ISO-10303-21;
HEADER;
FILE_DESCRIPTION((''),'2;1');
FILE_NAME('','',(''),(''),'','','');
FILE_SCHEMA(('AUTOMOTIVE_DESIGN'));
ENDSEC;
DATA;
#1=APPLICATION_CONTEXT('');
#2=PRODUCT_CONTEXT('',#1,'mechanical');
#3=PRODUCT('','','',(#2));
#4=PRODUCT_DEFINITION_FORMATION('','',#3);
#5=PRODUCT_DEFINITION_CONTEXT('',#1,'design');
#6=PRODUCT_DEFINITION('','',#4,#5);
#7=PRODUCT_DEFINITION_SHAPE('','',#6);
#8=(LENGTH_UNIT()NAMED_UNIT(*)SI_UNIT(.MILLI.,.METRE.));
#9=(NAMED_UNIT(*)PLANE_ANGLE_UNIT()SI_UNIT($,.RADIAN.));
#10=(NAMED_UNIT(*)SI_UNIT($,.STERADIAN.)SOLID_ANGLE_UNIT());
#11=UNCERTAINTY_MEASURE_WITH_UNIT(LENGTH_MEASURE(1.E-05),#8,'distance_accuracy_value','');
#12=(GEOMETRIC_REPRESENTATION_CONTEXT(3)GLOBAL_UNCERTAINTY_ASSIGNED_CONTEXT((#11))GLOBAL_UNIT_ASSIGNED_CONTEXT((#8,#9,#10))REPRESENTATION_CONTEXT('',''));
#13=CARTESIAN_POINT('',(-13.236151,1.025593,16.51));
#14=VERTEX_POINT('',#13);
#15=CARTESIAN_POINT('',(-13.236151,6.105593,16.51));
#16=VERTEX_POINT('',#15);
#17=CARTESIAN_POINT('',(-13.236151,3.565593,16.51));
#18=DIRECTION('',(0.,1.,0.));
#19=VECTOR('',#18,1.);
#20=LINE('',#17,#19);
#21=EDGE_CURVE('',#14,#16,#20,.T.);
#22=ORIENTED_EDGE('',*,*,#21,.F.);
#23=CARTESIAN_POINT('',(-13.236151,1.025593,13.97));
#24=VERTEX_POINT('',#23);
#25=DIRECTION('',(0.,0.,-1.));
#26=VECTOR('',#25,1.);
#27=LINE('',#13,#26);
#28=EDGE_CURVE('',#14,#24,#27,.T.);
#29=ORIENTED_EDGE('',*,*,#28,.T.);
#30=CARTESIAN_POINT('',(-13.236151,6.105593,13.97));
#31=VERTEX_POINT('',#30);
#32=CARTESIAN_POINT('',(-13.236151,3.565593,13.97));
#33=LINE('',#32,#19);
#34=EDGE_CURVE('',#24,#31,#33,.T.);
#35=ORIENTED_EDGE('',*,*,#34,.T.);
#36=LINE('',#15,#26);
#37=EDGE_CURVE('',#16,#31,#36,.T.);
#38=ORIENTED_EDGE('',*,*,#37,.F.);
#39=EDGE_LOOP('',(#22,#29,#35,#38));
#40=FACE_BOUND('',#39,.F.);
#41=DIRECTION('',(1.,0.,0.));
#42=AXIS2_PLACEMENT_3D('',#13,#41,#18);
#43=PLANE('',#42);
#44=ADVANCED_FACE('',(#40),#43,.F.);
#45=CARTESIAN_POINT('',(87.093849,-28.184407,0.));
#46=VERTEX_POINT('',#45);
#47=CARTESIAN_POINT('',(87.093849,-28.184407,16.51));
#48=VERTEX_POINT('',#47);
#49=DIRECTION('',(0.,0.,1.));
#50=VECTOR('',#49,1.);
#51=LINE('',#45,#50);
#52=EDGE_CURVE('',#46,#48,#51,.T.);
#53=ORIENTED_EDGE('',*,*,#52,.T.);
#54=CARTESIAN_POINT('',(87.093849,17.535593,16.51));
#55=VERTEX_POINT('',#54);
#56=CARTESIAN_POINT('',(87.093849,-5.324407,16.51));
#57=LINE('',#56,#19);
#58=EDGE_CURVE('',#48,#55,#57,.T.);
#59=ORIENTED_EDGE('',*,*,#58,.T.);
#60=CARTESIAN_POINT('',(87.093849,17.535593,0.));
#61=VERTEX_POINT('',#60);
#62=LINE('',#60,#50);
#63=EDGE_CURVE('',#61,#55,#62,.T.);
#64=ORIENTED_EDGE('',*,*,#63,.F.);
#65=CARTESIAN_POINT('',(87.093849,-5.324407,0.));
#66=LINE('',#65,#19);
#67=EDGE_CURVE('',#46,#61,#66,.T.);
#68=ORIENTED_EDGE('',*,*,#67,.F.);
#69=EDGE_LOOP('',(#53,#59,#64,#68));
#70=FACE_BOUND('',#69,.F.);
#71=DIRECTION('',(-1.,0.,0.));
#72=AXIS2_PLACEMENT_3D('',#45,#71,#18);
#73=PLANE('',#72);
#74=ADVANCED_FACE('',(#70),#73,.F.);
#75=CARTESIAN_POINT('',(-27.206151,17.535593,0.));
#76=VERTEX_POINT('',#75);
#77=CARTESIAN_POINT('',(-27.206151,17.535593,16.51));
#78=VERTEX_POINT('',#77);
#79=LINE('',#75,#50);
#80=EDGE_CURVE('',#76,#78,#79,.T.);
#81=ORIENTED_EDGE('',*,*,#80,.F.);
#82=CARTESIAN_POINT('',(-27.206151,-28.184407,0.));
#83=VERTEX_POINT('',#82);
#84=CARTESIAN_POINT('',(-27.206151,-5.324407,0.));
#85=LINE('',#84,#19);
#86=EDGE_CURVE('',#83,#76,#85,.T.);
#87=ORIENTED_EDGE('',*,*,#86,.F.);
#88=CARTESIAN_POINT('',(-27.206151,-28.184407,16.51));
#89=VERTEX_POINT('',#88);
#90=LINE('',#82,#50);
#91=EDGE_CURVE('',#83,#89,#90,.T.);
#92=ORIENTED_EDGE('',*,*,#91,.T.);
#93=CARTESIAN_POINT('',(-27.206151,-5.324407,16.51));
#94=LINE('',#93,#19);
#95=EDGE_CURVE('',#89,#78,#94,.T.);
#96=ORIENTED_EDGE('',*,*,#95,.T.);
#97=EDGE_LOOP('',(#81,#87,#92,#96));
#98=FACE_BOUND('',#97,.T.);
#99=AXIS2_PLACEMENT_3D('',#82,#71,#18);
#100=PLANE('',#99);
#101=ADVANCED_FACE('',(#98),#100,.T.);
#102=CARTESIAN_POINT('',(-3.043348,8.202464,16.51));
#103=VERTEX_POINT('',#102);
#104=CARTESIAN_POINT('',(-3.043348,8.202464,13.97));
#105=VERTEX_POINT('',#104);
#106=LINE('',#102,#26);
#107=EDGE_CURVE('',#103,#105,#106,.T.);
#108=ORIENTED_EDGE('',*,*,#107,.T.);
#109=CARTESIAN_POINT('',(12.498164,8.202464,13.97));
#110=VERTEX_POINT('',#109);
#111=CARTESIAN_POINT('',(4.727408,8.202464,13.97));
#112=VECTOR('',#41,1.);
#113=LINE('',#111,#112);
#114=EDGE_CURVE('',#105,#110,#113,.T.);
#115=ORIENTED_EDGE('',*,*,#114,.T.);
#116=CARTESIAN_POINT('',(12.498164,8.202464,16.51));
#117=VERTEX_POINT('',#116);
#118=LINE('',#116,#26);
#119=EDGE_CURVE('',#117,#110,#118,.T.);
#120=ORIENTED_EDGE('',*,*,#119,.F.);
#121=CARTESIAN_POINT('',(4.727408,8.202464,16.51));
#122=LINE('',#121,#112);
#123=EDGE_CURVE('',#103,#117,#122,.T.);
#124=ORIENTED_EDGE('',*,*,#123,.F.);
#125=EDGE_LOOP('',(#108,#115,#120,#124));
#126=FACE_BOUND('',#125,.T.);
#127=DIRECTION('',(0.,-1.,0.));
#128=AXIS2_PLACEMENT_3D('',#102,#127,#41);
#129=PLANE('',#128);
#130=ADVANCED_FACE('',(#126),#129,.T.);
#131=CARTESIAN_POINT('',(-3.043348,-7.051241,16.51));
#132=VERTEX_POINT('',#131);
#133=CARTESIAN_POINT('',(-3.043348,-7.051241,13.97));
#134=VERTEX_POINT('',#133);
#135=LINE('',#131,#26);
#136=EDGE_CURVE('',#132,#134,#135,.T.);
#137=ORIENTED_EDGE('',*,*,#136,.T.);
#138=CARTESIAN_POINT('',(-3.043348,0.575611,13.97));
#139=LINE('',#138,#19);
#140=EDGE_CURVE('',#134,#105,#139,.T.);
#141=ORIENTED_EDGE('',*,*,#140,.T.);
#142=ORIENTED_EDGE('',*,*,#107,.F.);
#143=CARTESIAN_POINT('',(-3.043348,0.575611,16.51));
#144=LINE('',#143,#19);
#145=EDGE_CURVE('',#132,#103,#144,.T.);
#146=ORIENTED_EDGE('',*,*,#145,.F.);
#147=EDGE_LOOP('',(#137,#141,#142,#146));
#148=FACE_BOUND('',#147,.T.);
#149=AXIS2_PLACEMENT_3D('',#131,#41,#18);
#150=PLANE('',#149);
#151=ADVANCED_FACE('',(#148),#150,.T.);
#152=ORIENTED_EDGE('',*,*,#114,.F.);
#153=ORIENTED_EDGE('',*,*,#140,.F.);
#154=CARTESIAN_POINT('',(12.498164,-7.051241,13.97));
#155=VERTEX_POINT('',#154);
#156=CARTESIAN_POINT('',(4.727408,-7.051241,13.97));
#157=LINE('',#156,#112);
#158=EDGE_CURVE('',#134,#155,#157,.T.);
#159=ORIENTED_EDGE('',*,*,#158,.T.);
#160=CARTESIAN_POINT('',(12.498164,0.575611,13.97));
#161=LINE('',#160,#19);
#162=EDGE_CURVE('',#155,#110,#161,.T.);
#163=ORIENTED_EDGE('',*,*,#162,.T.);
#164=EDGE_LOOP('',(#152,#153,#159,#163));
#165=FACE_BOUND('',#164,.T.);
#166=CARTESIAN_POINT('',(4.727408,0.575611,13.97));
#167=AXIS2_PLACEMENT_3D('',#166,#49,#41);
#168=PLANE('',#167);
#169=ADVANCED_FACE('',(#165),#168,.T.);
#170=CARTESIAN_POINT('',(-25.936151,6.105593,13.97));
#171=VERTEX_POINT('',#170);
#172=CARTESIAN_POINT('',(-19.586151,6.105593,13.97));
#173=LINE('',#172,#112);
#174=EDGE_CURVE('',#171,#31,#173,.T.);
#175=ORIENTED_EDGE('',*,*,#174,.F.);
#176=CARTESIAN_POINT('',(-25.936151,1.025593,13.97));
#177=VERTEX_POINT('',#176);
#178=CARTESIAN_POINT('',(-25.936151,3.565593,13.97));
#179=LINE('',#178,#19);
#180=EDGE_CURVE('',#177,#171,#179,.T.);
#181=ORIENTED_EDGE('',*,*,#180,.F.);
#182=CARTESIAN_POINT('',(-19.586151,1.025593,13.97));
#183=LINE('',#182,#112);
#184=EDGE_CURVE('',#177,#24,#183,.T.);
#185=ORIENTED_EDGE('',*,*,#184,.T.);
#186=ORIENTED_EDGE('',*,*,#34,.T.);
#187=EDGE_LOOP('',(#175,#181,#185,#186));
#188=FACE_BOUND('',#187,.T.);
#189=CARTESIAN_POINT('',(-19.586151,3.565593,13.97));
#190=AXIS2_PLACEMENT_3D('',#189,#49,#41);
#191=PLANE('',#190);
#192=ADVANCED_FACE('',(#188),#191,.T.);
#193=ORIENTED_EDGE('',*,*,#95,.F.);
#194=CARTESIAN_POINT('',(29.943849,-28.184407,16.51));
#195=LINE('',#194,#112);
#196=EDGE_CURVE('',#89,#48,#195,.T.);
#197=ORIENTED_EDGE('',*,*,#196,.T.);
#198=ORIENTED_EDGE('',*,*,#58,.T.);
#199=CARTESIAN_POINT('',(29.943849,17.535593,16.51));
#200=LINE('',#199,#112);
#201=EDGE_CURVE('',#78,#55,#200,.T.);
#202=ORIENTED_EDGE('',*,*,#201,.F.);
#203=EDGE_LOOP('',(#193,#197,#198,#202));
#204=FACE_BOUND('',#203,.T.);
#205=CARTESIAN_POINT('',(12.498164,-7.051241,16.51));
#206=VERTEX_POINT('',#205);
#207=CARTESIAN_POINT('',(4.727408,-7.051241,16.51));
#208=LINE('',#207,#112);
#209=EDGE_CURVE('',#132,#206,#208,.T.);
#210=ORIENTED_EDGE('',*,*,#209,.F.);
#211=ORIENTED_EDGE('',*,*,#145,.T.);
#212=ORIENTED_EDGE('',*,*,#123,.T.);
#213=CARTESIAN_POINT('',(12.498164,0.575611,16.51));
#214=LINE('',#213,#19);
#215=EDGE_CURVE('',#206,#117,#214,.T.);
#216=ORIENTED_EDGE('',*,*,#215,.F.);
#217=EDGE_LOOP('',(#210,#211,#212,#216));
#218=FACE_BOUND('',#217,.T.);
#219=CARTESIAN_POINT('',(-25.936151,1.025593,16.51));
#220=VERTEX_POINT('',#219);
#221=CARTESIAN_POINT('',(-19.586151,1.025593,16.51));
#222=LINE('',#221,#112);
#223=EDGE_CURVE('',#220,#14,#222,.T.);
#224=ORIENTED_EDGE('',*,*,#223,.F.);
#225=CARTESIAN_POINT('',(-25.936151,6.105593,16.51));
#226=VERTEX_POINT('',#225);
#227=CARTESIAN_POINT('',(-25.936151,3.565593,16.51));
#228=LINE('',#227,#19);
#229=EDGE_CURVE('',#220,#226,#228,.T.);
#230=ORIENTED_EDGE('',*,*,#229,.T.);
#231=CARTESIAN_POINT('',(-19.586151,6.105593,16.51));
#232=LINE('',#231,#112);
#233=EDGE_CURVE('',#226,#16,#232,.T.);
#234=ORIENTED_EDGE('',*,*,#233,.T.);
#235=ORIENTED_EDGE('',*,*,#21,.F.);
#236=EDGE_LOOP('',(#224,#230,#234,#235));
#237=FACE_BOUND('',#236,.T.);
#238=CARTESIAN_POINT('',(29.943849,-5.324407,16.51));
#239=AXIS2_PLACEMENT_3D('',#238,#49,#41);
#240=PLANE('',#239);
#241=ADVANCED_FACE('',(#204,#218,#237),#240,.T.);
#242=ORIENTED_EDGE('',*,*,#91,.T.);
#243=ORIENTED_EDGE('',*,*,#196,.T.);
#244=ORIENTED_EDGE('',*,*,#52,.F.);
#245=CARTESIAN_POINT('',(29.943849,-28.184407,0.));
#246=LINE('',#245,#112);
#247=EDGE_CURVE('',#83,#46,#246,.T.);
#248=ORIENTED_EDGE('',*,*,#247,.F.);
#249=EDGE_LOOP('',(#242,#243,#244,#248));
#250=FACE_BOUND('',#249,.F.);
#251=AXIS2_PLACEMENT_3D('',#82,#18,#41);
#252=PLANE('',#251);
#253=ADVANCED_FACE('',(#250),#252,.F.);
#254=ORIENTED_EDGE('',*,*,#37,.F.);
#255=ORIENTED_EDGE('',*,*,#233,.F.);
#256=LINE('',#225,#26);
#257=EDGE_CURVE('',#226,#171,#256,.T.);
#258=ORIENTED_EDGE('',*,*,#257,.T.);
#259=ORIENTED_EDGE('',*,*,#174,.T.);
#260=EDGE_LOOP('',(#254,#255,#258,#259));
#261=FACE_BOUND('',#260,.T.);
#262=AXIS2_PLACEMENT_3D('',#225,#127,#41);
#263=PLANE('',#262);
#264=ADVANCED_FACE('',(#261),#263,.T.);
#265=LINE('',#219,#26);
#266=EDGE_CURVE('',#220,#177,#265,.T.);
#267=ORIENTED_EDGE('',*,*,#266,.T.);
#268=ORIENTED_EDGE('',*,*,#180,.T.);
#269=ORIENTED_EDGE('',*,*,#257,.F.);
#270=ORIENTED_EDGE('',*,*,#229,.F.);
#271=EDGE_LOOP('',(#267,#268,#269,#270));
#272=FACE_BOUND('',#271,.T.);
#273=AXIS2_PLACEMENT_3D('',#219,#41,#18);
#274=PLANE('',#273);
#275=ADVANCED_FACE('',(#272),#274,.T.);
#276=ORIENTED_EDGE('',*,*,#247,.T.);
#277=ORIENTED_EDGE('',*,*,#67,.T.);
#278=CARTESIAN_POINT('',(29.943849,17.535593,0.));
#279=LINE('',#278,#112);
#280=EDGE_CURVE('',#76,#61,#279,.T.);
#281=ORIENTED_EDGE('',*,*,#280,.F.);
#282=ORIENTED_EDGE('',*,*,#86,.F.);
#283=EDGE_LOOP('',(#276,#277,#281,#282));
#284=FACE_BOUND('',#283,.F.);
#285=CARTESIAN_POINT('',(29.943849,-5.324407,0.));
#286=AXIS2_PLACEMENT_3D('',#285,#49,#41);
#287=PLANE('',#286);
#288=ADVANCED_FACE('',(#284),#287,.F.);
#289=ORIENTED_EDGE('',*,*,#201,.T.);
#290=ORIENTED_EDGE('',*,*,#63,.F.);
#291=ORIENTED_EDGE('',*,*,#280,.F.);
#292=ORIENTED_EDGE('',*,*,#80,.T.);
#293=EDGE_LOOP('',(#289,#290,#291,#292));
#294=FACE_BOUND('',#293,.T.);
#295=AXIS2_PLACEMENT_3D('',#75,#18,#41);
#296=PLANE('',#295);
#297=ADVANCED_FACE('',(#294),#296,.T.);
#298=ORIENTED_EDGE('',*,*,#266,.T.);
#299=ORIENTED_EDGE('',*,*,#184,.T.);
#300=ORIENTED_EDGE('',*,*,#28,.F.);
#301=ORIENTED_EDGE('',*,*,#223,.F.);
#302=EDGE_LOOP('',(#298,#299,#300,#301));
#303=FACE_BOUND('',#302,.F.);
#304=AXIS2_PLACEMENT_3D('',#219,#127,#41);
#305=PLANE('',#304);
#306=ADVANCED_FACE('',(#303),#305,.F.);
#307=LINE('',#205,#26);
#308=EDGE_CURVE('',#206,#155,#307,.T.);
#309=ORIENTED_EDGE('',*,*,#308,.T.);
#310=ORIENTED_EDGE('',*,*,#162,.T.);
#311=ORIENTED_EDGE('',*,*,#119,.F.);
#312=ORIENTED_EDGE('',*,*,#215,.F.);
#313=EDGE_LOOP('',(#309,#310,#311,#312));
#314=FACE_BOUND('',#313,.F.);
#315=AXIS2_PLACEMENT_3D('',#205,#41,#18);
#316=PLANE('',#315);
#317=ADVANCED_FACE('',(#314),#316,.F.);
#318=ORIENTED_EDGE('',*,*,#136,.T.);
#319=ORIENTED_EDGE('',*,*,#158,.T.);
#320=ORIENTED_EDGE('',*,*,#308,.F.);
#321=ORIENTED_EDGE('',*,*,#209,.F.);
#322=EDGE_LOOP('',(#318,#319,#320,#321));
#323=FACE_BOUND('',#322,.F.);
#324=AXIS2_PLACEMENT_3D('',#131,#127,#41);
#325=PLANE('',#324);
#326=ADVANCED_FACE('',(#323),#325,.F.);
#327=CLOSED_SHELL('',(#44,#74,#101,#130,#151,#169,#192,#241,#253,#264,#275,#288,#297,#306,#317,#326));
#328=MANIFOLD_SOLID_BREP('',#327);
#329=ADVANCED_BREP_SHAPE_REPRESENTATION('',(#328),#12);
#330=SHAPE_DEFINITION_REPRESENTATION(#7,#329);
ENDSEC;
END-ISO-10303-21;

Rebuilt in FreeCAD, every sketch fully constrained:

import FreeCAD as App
import Part
import Sketcher

V = App.Vector
Q = App.Units.Quantity

doc = App.newDocument("Part")
params = doc.addObject("Spreadsheet::Sheet", "Params")
for row, (alias, value) in enumerate([
    ("sketch1_width", "4.5 in"),
    ("sketch1_height", "1.8 in"),
    ("pad1_length", "0.65 in"),
    ("sketch2_width", "0.5 in"),
    ("sketch2_height", "0.2 in"),
    ("pocket1_length", "0.1 in"),
], start=1):
    params.set(f"A{row}", alias)
    params.set(f"B{row}", "=" + value)
    params.setAlias(f"B{row}", alias)

body = doc.addObject("PartDesign::Body", "Body")

# Sketch on XY plane
sketch1 = body.newObject("Sketcher::SketchObject", "Sketch")
sketch1.AttachmentSupport = (doc.getObject("XY_Plane"), [""])
sketch1.MapMode = "FlatFace"
sketch1.addGeometry([
    Part.LineSegment(V(-27, 18, 0), V(-27, -28, 0)),
    Part.LineSegment(V(-27, -28, 0), V(87, -28, 0)),
    Part.LineSegment(V(87, -28, 0), V(87, 18, 0)),
    Part.LineSegment(V(87, 18, 0), V(-27, 18, 0)),
], False)
sketch1.addConstraint([
    Sketcher.Constraint("Coincident", 0, 2, 1, 1),
    Sketcher.Constraint("Coincident", 1, 2, 2, 1),
    Sketcher.Constraint("Coincident", 2, 2, 3, 1),
    Sketcher.Constraint("Coincident", 3, 2, 0, 1),
    Sketcher.Constraint("Vertical", 0),
    Sketcher.Constraint("Horizontal", 1),
    Sketcher.Constraint("Vertical", 2),
    Sketcher.Constraint("Horizontal", 3),
    Sketcher.Constraint("DistanceX", 1, 1, 1, 2, Q("4.5 in")),
    Sketcher.Constraint("DistanceY", 0, 2, 0, 1, Q("1.8 in")),
    Sketcher.Constraint("DistanceX", 0, 2, -1, 1, 27.206151),
    Sketcher.Constraint("DistanceY", 0, 2, -1, 1, 28.184407),
])
sketch1.setExpression("Constraints[8]", "Params.sketch1_width")
sketch1.setExpression("Constraints[9]", "Params.sketch1_height")
pad1 = body.newObject("PartDesign::Pad", "Pad")
pad1.Profile = sketch1
pad1.setExpression("Length", "Params.pad1_length")

# Sketch on XY plane
sketch2 = body.newObject("Sketcher::SketchObject", "Sketch001")
sketch2.AttachmentSupport = (doc.getObject("XY_Plane"), [""])
sketch2.MapMode = "FlatFace"
sketch2.AttachmentOffset = App.Placement(V(0, 0, 0.65 * 25.4), App.Rotation())
sketch2.addGeometry([
    Part.LineSegment(V(-26, 6, 0), V(-26, 1, 0)),  # 0
    Part.LineSegment(V(-26, 1, 0), V(-13, 1, 0)),  # 1
    Part.LineSegment(V(-13, 1, 0), V(-13, 6, 0)),  # 2
    Part.LineSegment(V(-13, 6, 0), V(-26, 6, 0)),  # 3
    Part.LineSegment(V(-3, 8, 0), V(-3, -7, 0)),  # 4
    Part.LineSegment(V(-3, -7, 0), V(12, -7, 0)),  # 5
    Part.LineSegment(V(12, -7, 0), V(12, 8, 0)),  # 6
    Part.LineSegment(V(12, 8, 0), V(-3, 8, 0)),  # 7
], False)
sketch2.addConstraint([
    Sketcher.Constraint("Coincident", 0, 2, 1, 1),
    Sketcher.Constraint("Coincident", 1, 2, 2, 1),
    Sketcher.Constraint("Coincident", 2, 2, 3, 1),
    Sketcher.Constraint("Coincident", 3, 2, 0, 1),
    Sketcher.Constraint("Coincident", 4, 2, 5, 1),
    Sketcher.Constraint("Coincident", 5, 2, 6, 1),
    Sketcher.Constraint("Coincident", 6, 2, 7, 1),
    Sketcher.Constraint("Coincident", 7, 2, 4, 1),
    Sketcher.Constraint("Vertical", 0),
    Sketcher.Constraint("Horizontal", 1),
    Sketcher.Constraint("Vertical", 2),
    Sketcher.Constraint("Horizontal", 3),
    Sketcher.Constraint("Vertical", 4),
    Sketcher.Constraint("Horizontal", 5),
    Sketcher.Constraint("Vertical", 6),
    Sketcher.Constraint("Horizontal", 7),
    Sketcher.Constraint("DistanceX", 1, 1, 1, 2, Q("0.5 in")),
    Sketcher.Constraint("DistanceY", 0, 2, 0, 1, Q("0.2 in")),
    Sketcher.Constraint("DistanceX", 5, 1, 5, 2, 15.541512),
    Sketcher.Constraint("DistanceY", 4, 2, 4, 1, 15.253705),
    Sketcher.Constraint("DistanceX", 0, 2, -1, 1, 25.936151),
    Sketcher.Constraint("DistanceY", 4, 2, -1, 1, 7.051241),
    Sketcher.Constraint("DistanceY", 2, 2, 6, 2, 2.096871),
    Sketcher.Constraint("DistanceX", 4, 2, -1, 1, 3.043348),
])
sketch2.setExpression("Constraints[16]", "Params.sketch2_width")
sketch2.setExpression("Constraints[17]", "Params.sketch2_height")
pocket1 = body.newObject("PartDesign::Pocket", "Pocket")
pocket1.Profile = sketch2
pocket1.setExpression("Length", "Params.pocket1_length")

doc.recompute()
